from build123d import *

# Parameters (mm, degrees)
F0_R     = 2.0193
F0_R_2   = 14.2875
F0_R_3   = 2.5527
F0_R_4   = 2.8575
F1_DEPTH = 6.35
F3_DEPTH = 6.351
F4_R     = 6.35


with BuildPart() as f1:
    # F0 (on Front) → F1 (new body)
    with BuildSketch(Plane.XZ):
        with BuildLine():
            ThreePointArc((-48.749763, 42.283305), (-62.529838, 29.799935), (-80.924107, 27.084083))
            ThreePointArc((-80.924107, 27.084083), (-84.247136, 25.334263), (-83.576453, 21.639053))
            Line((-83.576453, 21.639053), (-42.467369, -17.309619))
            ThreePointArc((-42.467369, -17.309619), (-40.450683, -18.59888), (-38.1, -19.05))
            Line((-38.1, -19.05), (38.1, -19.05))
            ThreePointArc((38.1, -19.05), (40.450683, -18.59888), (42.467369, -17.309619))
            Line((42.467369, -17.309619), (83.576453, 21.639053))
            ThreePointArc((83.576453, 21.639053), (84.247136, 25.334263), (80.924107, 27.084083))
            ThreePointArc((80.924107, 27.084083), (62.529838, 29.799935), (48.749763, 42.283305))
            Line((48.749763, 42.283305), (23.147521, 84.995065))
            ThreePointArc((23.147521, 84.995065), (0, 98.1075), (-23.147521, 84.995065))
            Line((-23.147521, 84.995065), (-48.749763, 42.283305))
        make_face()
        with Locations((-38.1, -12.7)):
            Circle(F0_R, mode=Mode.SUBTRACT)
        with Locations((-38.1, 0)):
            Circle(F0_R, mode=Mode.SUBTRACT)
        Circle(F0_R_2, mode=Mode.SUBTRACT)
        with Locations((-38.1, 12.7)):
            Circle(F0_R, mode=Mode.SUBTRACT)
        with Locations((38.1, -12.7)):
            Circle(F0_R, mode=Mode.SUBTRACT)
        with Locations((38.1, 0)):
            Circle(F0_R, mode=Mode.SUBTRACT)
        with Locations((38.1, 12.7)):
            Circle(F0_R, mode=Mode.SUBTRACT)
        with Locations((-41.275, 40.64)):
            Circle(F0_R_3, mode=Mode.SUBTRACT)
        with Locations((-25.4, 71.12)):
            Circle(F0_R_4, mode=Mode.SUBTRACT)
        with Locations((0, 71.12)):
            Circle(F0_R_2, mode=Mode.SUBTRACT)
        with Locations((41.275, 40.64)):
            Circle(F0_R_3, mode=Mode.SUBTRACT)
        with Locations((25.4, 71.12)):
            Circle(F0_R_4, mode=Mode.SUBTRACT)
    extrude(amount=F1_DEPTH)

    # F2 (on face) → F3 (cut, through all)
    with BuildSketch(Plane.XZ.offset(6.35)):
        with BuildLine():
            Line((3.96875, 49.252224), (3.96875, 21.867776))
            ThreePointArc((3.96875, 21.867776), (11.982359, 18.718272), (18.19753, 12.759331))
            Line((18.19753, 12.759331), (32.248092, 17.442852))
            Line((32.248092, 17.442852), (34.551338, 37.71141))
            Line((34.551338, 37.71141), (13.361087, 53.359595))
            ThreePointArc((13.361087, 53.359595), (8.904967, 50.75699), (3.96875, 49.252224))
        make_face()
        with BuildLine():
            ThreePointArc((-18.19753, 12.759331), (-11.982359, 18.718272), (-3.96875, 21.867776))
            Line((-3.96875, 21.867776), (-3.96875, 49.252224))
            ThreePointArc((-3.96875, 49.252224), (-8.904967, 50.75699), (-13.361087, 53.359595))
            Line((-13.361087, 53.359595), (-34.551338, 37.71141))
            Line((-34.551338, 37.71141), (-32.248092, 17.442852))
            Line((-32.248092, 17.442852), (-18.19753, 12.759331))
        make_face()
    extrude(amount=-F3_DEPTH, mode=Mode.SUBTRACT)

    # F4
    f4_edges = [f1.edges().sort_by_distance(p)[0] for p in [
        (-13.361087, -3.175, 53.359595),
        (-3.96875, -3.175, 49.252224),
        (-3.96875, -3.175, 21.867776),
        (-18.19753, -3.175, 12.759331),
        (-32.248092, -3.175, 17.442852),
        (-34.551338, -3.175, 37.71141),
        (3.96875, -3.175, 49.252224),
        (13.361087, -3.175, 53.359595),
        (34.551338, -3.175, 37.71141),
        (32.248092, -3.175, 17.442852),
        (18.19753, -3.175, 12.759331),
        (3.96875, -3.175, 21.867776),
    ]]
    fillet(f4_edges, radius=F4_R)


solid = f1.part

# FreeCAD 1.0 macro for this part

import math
import FreeCAD as App
import Part
import Sketcher

V = App.Vector
Q = App.Units.Quantity


def edges_at(feature, points):
    """Names of the edges that pass closest to the given points."""
    edges = feature.Shape.Edges
    near = lambda p: min(range(len(edges)), key=lambda i: edges[i].distToShape(Part.Vertex(*p))[0])
    return sorted({f"Edge{near(p) + 1}" for p in points})

doc = App.newDocument("Part")
body = doc.addObject("PartDesign::Body", "Body")

# Sketch on XZ plane
sketch1 = body.newObject("Sketcher::SketchObject", "Sketch")
sketch1.AttachmentSupport = (doc.getObject("XZ_Plane"), [""])
sketch1.MapMode = "FlatFace"
sketch1.addGeometry(Part.ArcOfCircle(Part.Circle(V(-76.2, 58.737502, 0), V(0, 0, 1), 32.004002), math.radians(-98.488441), math.radians(-30.939278)), False)
sketch1.addGeometry(Part.ArcOfCircle(Part.Circle(V(-81.392769, 23.943863, 0), V(0, 0, 1), 3.175), math.radians(81.511557), math.radians(226.545794)), False)
sketch1.addGeometry(Part.LineSegment(V(-83.576453, 21.639053, 0), V(-42.467369, -17.309619, 0)), False)
sketch1.addGeometry(Part.ArcOfCircle(Part.Circle(V(-38.099998, -12.699996, 0), V(0, 0, 1), 6.350004), math.radians(-133.454197), math.radians(-90.000015)), False)
sketch1.addGeometry(Part.LineSegment(V(-38.1, -19.05, 0), V(38.1, -19.05, 0)), False)
sketch1.addGeometry(Part.ArcOfCircle(Part.Circle(V(38.099998, -12.699996, 0), V(0, 0, 1), 6.350004), math.radians(-89.999985), math.radians(-46.545803)), False)
sketch1.addGeometry(Part.LineSegment(V(42.467369, -17.309619, 0), V(83.576453, 21.639053, 0)), False)
sketch1.addGeometry(Part.ArcOfCircle(Part.Circle(V(81.392769, 23.943863, 0), V(0, 0, 1), 3.175), math.radians(-46.545794), math.radians(98.488443)), False)
sketch1.addGeometry(Part.ArcOfCircle(Part.Circle(V(76.2, 58.737502, 0), V(0, 0, 1), 32.004002), math.radians(-149.060722), math.radians(-81.511559)), False)
sketch1.addGeometry(Part.LineSegment(V(48.749763, 42.283305, 0), V(23.147521, 84.995065, 0)), False)
sketch1.addGeometry(Part.ArcOfCircle(Part.Circle(V(0, 71.12, 0), V(0, 0, 1), 26.9875), math.radians(30.939275), math.radians(149.060725)), False)
sketch1.addGeometry(Part.LineSegment(V(-23.147521, 84.995065, 0), V(-48.749763, 42.283305, 0)), False)
sketch1.addGeometry(Part.Circle(V(-38.1, -12.7, 0), V(0, 0, 1), 2.0193), False)
sketch1.addGeometry(Part.Circle(V(-38.1, 0, 0), V(0, 0, 1), 2.0193), False)
sketch1.addGeometry(Part.Circle(V(-38.1, 12.7, 0), V(0, 0, 1), 2.0193), False)
sketch1.addGeometry(Part.Circle(V(0, 0, 0), V(0, 0, 1), 14.2875), False)
sketch1.addGeometry(Part.Circle(V(38.1, -12.7, 0), V(0, 0, 1), 2.0193), False)
sketch1.addGeometry(Part.Circle(V(38.1, 0, 0), V(0, 0, 1), 2.0193), False)
sketch1.addGeometry(Part.Circle(V(38.1, 12.7, 0), V(0, 0, 1), 2.0193), False)
sketch1.addGeometry(Part.Circle(V(-41.275, 40.64, 0), V(0, 0, 1), 2.5527), False)
sketch1.addGeometry(Part.Circle(V(-25.4, 71.12, 0), V(0, 0, 1), 2.8575), False)
sketch1.addGeometry(Part.Circle(V(41.275, 40.64, 0), V(0, 0, 1), 2.5527), False)
sketch1.addGeometry(Part.Circle(V(0, 71.12, 0), V(0, 0, 1), 14.2875), False)
sketch1.addGeometry(Part.Circle(V(25.4, 71.12, 0), V(0, 0, 1), 2.8575), False)
sketch1.addConstraint(Sketcher.Constraint("Tangent", 0, 1, 1, 1))
sketch1.addConstraint(Sketcher.Constraint("Tangent", 1, 2, 2, 1))
sketch1.addConstraint(Sketcher.Constraint("Tangent", 2, 2, 3, 1))
sketch1.addConstraint(Sketcher.Constraint("Tangent", 3, 2, 4, 1))
sketch1.addConstraint(Sketcher.Constraint("Tangent", 4, 2, 5, 1))
sketch1.addConstraint(Sketcher.Constraint("Tangent", 5, 2, 6, 1))
sketch1.addConstraint(Sketcher.Constraint("Tangent", 6, 2, 7, 1))
sketch1.addConstraint(Sketcher.Constraint("Tangent", 7, 2, 8, 2))
sketch1.addConstraint(Sketcher.Constraint("Tangent", 8, 1, 9, 1))
sketch1.addConstraint(Sketcher.Constraint("Tangent", 9, 2, 10, 1))
sketch1.addConstraint(Sketcher.Constraint("Tangent", 10, 2, 11, 1))
sketch1.addConstraint(Sketcher.Constraint("Tangent", 11, 2, 0, 2))
sketch1.addConstraint(Sketcher.Constraint("Horizontal", 4))
sketch1.addConstraint(Sketcher.Constraint("Coincident", 15, 3, -1, 1))
sketch1.addConstraint(Sketcher.Constraint("Coincident", 12, 3, 3, 3))
sketch1.addConstraint(Sketcher.Constraint("Coincident", 16, 3, 5, 3))
sketch1.addConstraint(Sketcher.Constraint("Coincident", 22, 3, 10, 3))
sketch1.addConstraint(Sketcher.Constraint("Equal", 3, 5))
sketch1.addConstraint(Sketcher.Constraint("Equal", 1, 7))
sketch1.addConstraint(Sketcher.Constraint("Equal", 0, 8))
sketch1.addConstraint(Sketcher.Constraint("Equal", 12, 13))
sketch1.addConstraint(Sketcher.Constraint("Equal", 13, 14))
sketch1.addConstraint(Sketcher.Constraint("Equal", 14, 16))
sketch1.addConstraint(Sketcher.Constraint("Equal", 16, 17))
sketch1.addConstraint(Sketcher.Constraint("Equal", 17, 18))
sketch1.addConstraint(Sketcher.Constraint("Equal", 19, 21))
sketch1.addConstraint(Sketcher.Constraint("Equal", 15, 22))
sketch1.addConstraint(Sketcher.Constraint("Equal", 20, 23))
sketch1.addConstraint(Sketcher.Constraint("Symmetric", 5, 3, 14, 3, -1, 1))
sketch1.addConstraint(Sketcher.Constraint("Symmetric", 13, 3, 17, 3, -1, 1))
sketch1.addConstraint(Sketcher.Constraint("Symmetric", 3, 3, 18, 3, -1, 1))
sketch1.addConstraint(Sketcher.Constraint("Symmetric", 1, 3, 7, 3, -2))
sketch1.addConstraint(Sketcher.Constraint("Symmetric", 19, 3, 21, 3, -2))
sketch1.addConstraint(Sketcher.Constraint("Symmetric", 20, 3, 23, 3, -2))
sketch1.addConstraint(Sketcher.Constraint("Symmetric", 9, 2, 10, 2, -2))
sketch1.addConstraint(Sketcher.Constraint("PointOnObject", 13, 3, -1))
sketch1.addConstraint(Sketcher.Constraint("Horizontal", 10, 3, 20, 3))
sketch1.addConstraint(Sketcher.Constraint("Horizontal", 2, 2, 5, 2))
sketch1.addConstraint(Sketcher.Constraint("Vertical", 12, 3, 13, 3))
sketch1.addConstraint(Sketcher.Constraint("DistanceX", 4, 1, 4, 2, Q("3 in")))
sketch1.addConstraint(Sketcher.Constraint("Radius", 0, Q("1.2600001 in")))
sketch1.addConstraint(Sketcher.Constraint("Radius", 3, Q("0.2500002 in")))
sketch1.addConstraint(Sketcher.Constraint("Diameter", 12, Q("0.159 in")))
sketch1.addConstraint(Sketcher.Constraint("Diameter", 15, Q("1.125 in")))
sketch1.addConstraint(Sketcher.Constraint("Diameter", 19, Q("0.201 in")))
sketch1.addConstraint(Sketcher.Constraint("Diameter", 20, Q("0.225 in")))
sketch1.addConstraint(Sketcher.Constraint("DistanceX", 0, 3, -1, 1, Q("3 in")))
sketch1.addConstraint(Sketcher.Constraint("DistanceX", 20, 3, -1, 1, Q("1 in")))
sketch1.addConstraint(Sketcher.Constraint("Radius", 1, Q("0.125 in")))
sketch1.addConstraint(Sketcher.Constraint("Radius", 10, Q("1.0625 in")))
sketch1.addConstraint(Sketcher.Constraint("DistanceY", 3, 3, 14, 3, Q("0.9999998 in")))
sketch1.addConstraint(Sketcher.Constraint("DistanceY", -1, 1, 10, 3, Q("2.8 in")))
sketch1.addConstraint(Sketcher.Constraint("DistanceY", -1, 1, 19, 3, Q("1.6 in")))
sketch1.addConstraint(Sketcher.Constraint("DistanceY", -1, 1, 0, 3, Q("2.3125001 in")))
sketch1.addConstraint(Sketcher.Constraint("DistanceX", 19, 3, -1, 1, Q("1.625 in")))
sketch1.addConstraint(Sketcher.Constraint("Distance", 2, 56.629991))
pad1 = body.newObject("PartDesign::Pad", "Pad")
pad1.Profile = sketch1
pad1.Length = Q("0.25 in")

# Sketch on XZ plane
sketch2 = body.newObject("Sketcher::SketchObject", "Sketch001")
sketch2.AttachmentSupport = (doc.getObject("XZ_Plane"), [""])
sketch2.MapMode = "FlatFace"
sketch2.AttachmentOffset = App.Placement(V(0, 0, 0.25 * 25.4), App.Rotation())
sketch2.addGeometry(Part.LineSegment(V(3.96875, 49.252224, 0), V(3.96875, 21.867776, 0)), False)
sketch2.addGeometry(Part.ArcOfCircle(Part.Circle(V(0.000004, 0.000004, 0), V(0, 0, 1), 22.224994), math.radians(35.036494), math.radians(79.713446)), False)
sketch2.addGeometry(Part.LineSegment(V(18.19753, 12.759331, 0), V(32.248092, 17.442852, 0)), False)
sketch2.addGeometry(Part.LineSegment(V(32.248092, 17.442852, 0), V(34.551338, 37.71141, 0)), False)
sketch2.addGeometry(Part.LineSegment(V(34.551338, 37.71141, 0), V(13.361087, 53.359595, 0)), False)
sketch2.addGeometry(Part.ArcOfCircle(Part.Circle(V(0, 71.120004, 0), V(0, 0, 1), 22.225003), math.radians(-79.713441), math.radians(-53.045997)), False)
sketch2.addGeometry(Part.ArcOfCircle(Part.Circle(V(-0.000004, 0.000004, 0), V(0, 0, 1), 22.224994), math.radians(100.286554), math.radians(144.963506)), False)
sketch2.addGeometry(Part.LineSegment(V(-3.96875, 21.867776, 0), V(-3.96875, 49.252224, 0)), False)
sketch2.addGeometry(Part.ArcOfCircle(Part.Circle(V(0, 71.120004, 0), V(0, 0, 1), 22.225003), math.radians(-126.954003), math.radians(-100.286559)), False)
sketch2.addGeometry(Part.LineSegment(V(-13.361087, 53.359595, 0), V(-34.551338, 37.71141, 0)), False)
sketch2.addGeometry(Part.LineSegment(V(-34.551338, 37.71141, 0), V(-32.248092, 17.442852, 0)), False)
sketch2.addGeometry(Part.LineSegment(V(-32.248092, 17.442852, 0), V(-18.19753, 12.759331, 0)), False)
sketch2.addConstraint(Sketcher.Constraint("Coincident", 0, 2, 1, 2))
sketch2.addConstraint(Sketcher.Constraint("Coincident", 1, 1, 2, 1))
sketch2.addConstraint(Sketcher.Constraint("Coincident", 2, 2, 3, 1))
sketch2.addConstraint(Sketcher.Constraint("Coincident", 3, 2, 4, 1))
sketch2.addConstraint(Sketcher.Constraint("Coincident", 4, 2, 5, 2))
sketch2.addConstraint(Sketcher.Constraint("Coincident", 5, 1, 0, 1))
sketch2.addConstraint(Sketcher.Constraint("Coincident", 6, 1, 7, 1))
sketch2.addConstraint(Sketcher.Constraint("Coincident", 7, 2, 8, 2))
sketch2.addConstraint(Sketcher.Constraint("Coincident", 8, 1, 9, 1))
sketch2.addConstraint(Sketcher.Constraint("Coincident", 9, 2, 10, 1))
sketch2.addConstraint(Sketcher.Constraint("Coincident", 10, 2, 11, 1))
sketch2.addConstraint(Sketcher.Constraint("Coincident", 11, 2, 6, 2))
sketch2.addConstraint(Sketcher.Constraint("Vertical", 0))
sketch2.addConstraint(Sketcher.Constraint("Vertical", 7))
sketch2.addConstraint(Sketcher.Constraint("Coincident", 1, 3, -1, 1))
sketch2.addConstraint(Sketcher.Constraint("Coincident", 6, 3, -1, 1))
sketch2.addConstraint(Sketcher.Constraint("Coincident", 8, 3, 5, 3))
sketch2.addConstraint(Sketcher.Constraint("Equal", 1, 6))
sketch2.addConstraint(Sketcher.Constraint("Equal", 5, 8))
sketch2.addConstraint(Sketcher.Constraint("Symmetric", 5, 1, 7, 2, -2))
sketch2.addConstraint(Sketcher.Constraint("Symmetric", 3, 2, 9, 2, -2))
sketch2.addConstraint(Sketcher.Constraint("Symmetric", 2, 2, 10, 2, -2))
sketch2.addConstraint(Sketcher.Constraint("Horizontal", 4, 2, 8, 1))
sketch2.addConstraint(Sketcher.Constraint("Horizontal", 1, 1, 11, 2))
sketch2.addConstraint(Sketcher.Constraint("Radius", 5, Q("0.8750001 in")))
sketch2.addConstraint(Sketcher.Constraint("DistanceY", -1, 1, 5, 3, Q("2.8000001 in")))
sketch2.addConstraint(Sketcher.Constraint("DistanceX", -1, 1, 0, 2, Q("0.15625 in")))
sketch2.addConstraint(Sketcher.Constraint("Radius", 1, 22.224994))
sketch2.addConstraint(Sketcher.Constraint("DistanceY", 1, 1, 0, 2, Q("0.3586002 in")))
sketch2.addConstraint(Sketcher.Constraint("Distance", 4, 26.341838))
sketch2.addConstraint(Sketcher.Constraint("DistanceY", -1, 1, 2, 2, 17.442852))
sketch2.addConstraint(Sketcher.Constraint("DistanceY", -1, 1, 3, 2, 37.71141))
sketch2.addConstraint(Sketcher.Constraint("DistanceX", 0, 2, 2, 2, 28.279342))
sketch2.addConstraint(Sketcher.Constraint("DistanceX", 1, 1, 3, 2, 16.353808))
pocket1 = body.newObject("PartDesign::Pocket", "Pocket")
pocket1.Profile = sketch2
pocket1.Type = "ThroughAll"
doc.recompute()

fillet = body.newObject("PartDesign::Fillet", "Fillet")
fillet.Base = (pocket1, edges_at(pocket1, [
    (-13.361, -3.175, 53.36),
    (-3.969, -3.175, 49.252),
    (-3.969, -3.175, 21.868),
    (-18.198, -3.175, 12.759),
    (-32.248, -3.175, 17.443),
    (-34.551, -3.175, 37.711),
    (3.969, -3.175, 49.252),
    (13.361, -3.175, 53.36),
    (34.551, -3.175, 37.711),
    (32.248, -3.175, 17.443),
    (18.198, -3.175, 12.759),
    (3.969, -3.175, 21.868),
]))
fillet.Radius = Q("0.25 in")

doc.recompute()
